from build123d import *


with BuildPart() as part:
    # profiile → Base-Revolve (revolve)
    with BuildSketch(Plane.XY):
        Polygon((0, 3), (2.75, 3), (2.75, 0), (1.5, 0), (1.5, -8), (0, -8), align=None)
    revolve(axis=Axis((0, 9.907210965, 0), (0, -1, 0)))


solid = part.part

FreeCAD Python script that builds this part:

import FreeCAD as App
import Part
import Sketcher

V = App.Vector
Q = App.Units.Quantity


def add_polygon(sketch, points):
    """Adds a closed chain of lines whose ends are joined by coincident constraints."""
    first, n = sketch.GeometryCount, len(points)
    for a, b in zip(points, points[1:] + points[:1]):
        sketch.addGeometry(Part.LineSegment(App.Vector(*a, 0), App.Vector(*b, 0)), False)
    for i in range(n):
        sketch.addConstraint(Sketcher.Constraint("Coincident", first + i, 2, first + (i + 1) % n, 1))

doc = App.newDocument("Part")
body = doc.addObject("PartDesign::Body", "Body")

# Sketch on XY plane
sketch1 = body.newObject("Sketcher::SketchObject", "Sketch")
sketch1.AttachmentSupport = (doc.getObject("XY_Plane"), [""])
sketch1.MapMode = "FlatFace"
add_polygon(sketch1, [(2.8, 3), (0, 3), (0, -8), (1.5, -8), (1.5, 0), (2.8, 0)])  # lines 0-5
sketch1.addConstraint([
    Sketcher.Constraint("Horizontal", 0),
    Sketcher.Constraint("Vertical", 1),
    Sketcher.Constraint("Horizontal", 2),
    Sketcher.Constraint("Vertical", 3),
    Sketcher.Constraint("Horizontal", 4),
    Sketcher.Constraint("Vertical", 5),
    Sketcher.Constraint("PointOnObject", 0, 2, -2),
    Sketcher.Constraint("PointOnObject", 3, 2, -1),
    Sketcher.Constraint("DistanceY", 1, 2, 1, 1, Q("11 mm")),
    Sketcher.Constraint("DistanceY", 3, 1, 3, 2, Q("8 mm")),
    Sketcher.Constraint("DistanceX", 2, 1, 2, 2, Q("1.5 mm")),
    Sketcher.Constraint("DistanceX", 0, 2, 0, 1, Q("2.75 mm")),
])
revolution = body.newObject("PartDesign::Revolution", "Revolution")
revolution.Profile = sketch1
revolution.ReferenceAxis = (sketch1, ["V_Axis"])
revolution.Angle = 360

doc.recompute()
